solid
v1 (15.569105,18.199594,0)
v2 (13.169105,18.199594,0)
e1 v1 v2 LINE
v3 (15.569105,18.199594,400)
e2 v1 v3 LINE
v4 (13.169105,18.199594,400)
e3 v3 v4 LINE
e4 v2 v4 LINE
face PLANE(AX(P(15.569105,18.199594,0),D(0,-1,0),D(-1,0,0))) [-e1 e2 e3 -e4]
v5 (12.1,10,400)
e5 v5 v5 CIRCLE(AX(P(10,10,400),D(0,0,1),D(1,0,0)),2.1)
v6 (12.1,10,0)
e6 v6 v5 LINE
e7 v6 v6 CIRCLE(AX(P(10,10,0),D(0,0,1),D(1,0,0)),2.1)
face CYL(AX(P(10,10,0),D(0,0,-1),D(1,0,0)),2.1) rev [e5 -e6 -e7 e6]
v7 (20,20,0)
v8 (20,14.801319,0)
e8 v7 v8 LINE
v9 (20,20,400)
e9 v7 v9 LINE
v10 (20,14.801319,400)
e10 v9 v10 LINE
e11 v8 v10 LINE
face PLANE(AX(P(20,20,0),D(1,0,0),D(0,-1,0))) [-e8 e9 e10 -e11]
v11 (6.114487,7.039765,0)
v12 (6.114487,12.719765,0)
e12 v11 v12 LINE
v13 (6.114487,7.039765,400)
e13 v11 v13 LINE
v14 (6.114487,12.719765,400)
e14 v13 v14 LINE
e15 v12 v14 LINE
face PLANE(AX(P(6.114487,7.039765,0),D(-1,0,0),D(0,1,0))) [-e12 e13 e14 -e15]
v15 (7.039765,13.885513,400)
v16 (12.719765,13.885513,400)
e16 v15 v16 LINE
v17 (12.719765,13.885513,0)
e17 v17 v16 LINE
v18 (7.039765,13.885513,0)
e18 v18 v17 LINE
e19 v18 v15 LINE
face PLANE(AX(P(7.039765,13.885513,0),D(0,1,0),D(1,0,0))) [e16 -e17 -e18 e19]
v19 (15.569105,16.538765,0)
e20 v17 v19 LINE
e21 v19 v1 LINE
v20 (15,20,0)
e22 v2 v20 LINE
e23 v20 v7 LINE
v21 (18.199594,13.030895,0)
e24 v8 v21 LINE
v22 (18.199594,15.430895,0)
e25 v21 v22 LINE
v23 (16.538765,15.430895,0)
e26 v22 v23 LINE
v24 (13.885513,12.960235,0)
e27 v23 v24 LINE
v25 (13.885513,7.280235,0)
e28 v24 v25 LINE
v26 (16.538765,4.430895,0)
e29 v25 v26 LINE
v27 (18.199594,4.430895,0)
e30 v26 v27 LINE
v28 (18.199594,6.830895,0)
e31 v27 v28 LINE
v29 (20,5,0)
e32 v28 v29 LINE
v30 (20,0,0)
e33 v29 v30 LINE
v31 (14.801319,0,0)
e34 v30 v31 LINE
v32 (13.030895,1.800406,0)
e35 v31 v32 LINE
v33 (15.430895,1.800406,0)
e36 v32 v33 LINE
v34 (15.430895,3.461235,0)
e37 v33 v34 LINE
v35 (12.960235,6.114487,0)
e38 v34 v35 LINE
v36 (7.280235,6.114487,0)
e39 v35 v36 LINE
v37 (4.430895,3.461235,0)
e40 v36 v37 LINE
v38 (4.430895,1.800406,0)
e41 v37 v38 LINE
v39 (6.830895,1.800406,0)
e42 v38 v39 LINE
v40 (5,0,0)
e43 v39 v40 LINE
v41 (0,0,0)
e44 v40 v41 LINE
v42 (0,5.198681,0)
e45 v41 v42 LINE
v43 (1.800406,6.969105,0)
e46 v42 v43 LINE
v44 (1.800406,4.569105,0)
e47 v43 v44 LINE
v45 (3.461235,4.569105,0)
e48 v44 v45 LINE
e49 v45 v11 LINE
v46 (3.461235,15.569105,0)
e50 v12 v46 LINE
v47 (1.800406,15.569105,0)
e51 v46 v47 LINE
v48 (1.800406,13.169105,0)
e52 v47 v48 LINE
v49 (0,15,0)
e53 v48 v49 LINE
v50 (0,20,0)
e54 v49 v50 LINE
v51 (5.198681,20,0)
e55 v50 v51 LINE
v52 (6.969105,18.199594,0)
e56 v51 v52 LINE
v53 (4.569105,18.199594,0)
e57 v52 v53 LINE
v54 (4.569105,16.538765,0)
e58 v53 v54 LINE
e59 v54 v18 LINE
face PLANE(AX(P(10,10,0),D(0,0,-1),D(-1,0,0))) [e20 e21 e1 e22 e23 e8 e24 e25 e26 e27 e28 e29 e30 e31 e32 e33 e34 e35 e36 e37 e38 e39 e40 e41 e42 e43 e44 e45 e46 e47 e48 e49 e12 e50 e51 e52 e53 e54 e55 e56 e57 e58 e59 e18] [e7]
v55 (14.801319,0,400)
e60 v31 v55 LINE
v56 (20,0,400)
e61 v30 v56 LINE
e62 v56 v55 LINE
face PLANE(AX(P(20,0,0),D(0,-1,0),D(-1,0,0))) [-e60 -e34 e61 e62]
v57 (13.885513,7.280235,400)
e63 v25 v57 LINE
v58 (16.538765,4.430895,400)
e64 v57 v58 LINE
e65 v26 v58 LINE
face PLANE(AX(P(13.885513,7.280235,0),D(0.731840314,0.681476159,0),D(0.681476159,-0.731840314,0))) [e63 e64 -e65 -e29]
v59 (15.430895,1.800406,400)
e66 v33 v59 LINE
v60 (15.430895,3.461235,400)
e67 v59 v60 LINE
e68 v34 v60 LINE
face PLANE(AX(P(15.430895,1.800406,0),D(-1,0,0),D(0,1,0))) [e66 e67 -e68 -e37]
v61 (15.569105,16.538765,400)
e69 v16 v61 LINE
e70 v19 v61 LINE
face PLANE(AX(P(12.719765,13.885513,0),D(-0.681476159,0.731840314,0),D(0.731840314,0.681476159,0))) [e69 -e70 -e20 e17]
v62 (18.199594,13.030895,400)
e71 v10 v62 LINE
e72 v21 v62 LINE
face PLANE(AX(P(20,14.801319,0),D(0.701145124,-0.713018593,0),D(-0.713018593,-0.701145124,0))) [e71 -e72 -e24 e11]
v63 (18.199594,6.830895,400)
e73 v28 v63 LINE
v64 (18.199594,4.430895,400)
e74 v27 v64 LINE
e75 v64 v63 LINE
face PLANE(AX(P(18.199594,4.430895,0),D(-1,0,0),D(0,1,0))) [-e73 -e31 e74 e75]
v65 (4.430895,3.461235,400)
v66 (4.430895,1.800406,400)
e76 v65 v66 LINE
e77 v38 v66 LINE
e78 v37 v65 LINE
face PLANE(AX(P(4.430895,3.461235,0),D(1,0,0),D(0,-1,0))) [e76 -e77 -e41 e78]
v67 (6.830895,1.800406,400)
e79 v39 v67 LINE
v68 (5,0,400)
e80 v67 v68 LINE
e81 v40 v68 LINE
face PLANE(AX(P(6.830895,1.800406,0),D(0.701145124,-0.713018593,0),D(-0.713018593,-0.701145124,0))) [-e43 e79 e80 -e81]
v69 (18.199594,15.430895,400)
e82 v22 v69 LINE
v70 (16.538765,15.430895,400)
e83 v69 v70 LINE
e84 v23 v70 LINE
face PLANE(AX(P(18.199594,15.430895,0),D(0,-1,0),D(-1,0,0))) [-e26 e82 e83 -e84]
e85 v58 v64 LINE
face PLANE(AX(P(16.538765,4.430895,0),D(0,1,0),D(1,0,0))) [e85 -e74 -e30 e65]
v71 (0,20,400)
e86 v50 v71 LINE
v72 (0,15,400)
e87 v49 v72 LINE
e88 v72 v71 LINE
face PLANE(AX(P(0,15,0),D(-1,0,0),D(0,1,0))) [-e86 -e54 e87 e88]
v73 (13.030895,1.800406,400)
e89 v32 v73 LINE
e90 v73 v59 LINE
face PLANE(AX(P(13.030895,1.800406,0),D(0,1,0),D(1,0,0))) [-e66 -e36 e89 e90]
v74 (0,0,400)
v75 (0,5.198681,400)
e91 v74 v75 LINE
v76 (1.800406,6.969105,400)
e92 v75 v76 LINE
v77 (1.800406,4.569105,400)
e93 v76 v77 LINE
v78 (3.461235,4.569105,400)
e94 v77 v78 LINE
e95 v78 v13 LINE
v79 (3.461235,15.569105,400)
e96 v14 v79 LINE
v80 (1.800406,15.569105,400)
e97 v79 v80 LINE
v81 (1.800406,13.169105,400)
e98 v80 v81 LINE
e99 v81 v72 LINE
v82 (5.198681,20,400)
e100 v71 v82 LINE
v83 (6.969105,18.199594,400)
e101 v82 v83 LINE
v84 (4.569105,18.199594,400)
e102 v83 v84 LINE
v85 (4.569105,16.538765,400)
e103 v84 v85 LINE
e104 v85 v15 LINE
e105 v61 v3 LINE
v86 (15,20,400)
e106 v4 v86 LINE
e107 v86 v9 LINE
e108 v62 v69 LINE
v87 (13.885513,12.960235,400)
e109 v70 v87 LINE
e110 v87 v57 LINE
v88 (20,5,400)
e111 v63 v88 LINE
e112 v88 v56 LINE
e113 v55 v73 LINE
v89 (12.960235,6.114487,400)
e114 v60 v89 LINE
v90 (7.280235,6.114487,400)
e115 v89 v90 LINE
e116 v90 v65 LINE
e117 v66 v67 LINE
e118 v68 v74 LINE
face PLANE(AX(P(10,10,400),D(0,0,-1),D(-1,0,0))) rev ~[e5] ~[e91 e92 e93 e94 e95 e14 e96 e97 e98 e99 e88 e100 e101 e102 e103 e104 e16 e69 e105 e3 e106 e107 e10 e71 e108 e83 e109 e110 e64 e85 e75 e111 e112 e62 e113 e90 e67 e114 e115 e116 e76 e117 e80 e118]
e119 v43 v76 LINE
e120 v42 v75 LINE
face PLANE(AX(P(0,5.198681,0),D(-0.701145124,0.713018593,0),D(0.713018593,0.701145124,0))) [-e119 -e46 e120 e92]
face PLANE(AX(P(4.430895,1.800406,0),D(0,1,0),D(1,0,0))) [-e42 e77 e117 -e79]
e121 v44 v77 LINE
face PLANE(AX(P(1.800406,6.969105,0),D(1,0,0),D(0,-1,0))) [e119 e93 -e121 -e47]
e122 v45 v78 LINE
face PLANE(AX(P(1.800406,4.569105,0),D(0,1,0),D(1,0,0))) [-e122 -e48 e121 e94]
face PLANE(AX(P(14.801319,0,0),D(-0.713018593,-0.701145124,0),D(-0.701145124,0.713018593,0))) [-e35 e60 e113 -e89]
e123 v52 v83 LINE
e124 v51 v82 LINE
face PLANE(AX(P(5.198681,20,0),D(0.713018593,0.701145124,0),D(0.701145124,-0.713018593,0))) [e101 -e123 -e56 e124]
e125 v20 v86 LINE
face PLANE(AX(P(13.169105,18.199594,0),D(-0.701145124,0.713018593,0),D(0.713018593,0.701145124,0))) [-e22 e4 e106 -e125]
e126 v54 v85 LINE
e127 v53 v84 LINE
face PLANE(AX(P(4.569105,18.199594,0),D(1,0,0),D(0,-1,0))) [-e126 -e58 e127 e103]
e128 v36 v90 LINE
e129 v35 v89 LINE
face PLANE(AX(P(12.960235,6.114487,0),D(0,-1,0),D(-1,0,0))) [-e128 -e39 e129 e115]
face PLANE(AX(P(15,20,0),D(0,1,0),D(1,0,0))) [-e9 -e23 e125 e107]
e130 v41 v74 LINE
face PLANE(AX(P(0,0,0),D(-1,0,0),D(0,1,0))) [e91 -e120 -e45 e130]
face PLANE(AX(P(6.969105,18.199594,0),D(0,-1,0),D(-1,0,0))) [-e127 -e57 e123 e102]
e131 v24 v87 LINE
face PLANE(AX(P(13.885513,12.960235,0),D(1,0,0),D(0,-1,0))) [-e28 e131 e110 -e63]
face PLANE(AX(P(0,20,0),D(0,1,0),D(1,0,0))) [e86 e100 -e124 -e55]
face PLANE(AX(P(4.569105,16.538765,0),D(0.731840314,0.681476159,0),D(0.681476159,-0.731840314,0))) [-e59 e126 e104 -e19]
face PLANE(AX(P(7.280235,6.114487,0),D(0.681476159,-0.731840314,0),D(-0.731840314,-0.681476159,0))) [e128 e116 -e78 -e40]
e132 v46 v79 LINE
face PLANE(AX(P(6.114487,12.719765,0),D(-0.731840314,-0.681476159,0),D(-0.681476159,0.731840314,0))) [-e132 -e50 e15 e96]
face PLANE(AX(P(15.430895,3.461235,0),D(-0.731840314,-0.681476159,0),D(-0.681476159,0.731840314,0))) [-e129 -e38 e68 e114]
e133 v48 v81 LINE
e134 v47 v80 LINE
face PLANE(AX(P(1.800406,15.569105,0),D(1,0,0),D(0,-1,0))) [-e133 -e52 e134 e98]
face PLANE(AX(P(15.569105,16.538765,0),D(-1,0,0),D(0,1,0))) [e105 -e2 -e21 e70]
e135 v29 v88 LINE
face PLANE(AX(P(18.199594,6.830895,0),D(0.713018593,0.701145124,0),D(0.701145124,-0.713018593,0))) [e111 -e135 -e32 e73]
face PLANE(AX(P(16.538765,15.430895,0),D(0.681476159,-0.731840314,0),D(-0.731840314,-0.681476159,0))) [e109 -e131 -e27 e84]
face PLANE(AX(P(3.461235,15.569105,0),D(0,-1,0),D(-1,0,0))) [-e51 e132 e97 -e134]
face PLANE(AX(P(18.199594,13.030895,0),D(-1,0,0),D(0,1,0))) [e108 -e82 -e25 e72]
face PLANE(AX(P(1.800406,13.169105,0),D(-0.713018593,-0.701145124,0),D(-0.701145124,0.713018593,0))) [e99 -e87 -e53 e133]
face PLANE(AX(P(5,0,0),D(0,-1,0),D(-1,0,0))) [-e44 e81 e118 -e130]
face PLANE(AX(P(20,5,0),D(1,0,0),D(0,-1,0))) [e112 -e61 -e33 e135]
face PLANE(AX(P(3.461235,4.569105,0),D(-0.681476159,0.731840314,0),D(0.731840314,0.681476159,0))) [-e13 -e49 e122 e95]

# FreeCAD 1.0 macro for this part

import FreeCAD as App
import Part
import Sketcher

V = App.Vector
Q = App.Units.Quantity

doc = App.newDocument("Part")
params = doc.addObject("Spreadsheet::Sheet", "Params")
for row, (alias, value) in enumerate([
    ("sketch1_diameter", "4.2 mm"),
    ("sketch1_width", "5 mm"),
    ("sketch1_width2", "2.4 mm"),
    ("sketch1_width3", "5.68 mm"),
    ("pad1_length", "400 mm"),
], start=1):
    params.set(f"A{row}", alias)
    params.set(f"B{row}", "=" + value)
    params.setAlias(f"B{row}", alias)

body = doc.addObject("PartDesign::Body", "Body")

sketch1 = body.newObject("Sketcher::SketchObject", "Sketch")
sketch1.AttachmentSupport = (doc.getObject("XY_Plane"), [""])
sketch1.MapMode = "FlatFace"
sketch1.addGeometry([
    Part.LineSegment(V(12.7, 13.9, 0), V(7, 13.9, 0)),
    Part.LineSegment(V(7, 13.9, 0), V(4.6, 16.5, 0)),
    Part.LineSegment(V(4.6, 16.5, 0), V(4.6, 18.2, 0)),
    Part.LineSegment(V(4.6, 18.2, 0), V(7, 18.2, 0)),
    Part.LineSegment(V(7, 18.2, 0), V(5.2, 20, 0)),
    Part.LineSegment(V(5.2, 20, 0), V(0, 20, 0)),
    Part.LineSegment(V(0, 20, 0), V(0, 15, 0)),
    Part.LineSegment(V(0, 15, 0), V(1.8, 13.2, 0)),
    Part.LineSegment(V(1.8, 13.2, 0), V(1.8, 15.6, 0)),
    Part.LineSegment(V(1.8, 15.6, 0), V(3.5, 15.6, 0)),
    Part.LineSegment(V(3.5, 15.6, 0), V(6.1, 12.7, 0)),
    Part.LineSegment(V(6.1, 12.7, 0), V(6.1, 7, 0)),
    Part.LineSegment(V(6.1, 7, 0), V(3.5, 4.6, 0)),
    Part.LineSegment(V(3.5, 4.6, 0), V(1.8, 4.6, 0)),
    Part.LineSegment(V(1.8, 4.6, 0), V(1.8, 7, 0)),
    Part.LineSegment(V(1.8, 7, 0), V(0, 5.2, 0)),
    Part.LineSegment(V(0, 5.2, 0), V(0, 0, 0)),
    Part.LineSegment(V(0, 0, 0), V(5, 0, 0)),
    Part.LineSegment(V(5, 0, 0), V(6.8, 1.8, 0)),
    Part.LineSegment(V(6.8, 1.8, 0), V(4.4, 1.8, 0)),
    Part.LineSegment(V(4.4, 1.8, 0), V(4.4, 3.5, 0)),
    Part.LineSegment(V(4.4, 3.5, 0), V(7.3, 6.1, 0)),
    Part.LineSegment(V(7.3, 6.1, 0), V(13, 6.1, 0)),
    Part.LineSegment(V(13, 6.1, 0), V(15.4, 3.5, 0)),
    Part.LineSegment(V(15.4, 3.5, 0), V(15.4, 1.8, 0)),
    Part.LineSegment(V(15.4, 1.8, 0), V(13, 1.8, 0)),
    Part.LineSegment(V(13, 1.8, 0), V(14.8, 0, 0)),
    Part.LineSegment(V(14.8, 0, 0), V(20, 0, 0)),
    Part.LineSegment(V(20, 0, 0), V(20, 5, 0)),
    Part.LineSegment(V(20, 5, 0), V(18.2, 6.8, 0)),
    Part.LineSegment(V(18.2, 6.8, 0), V(18.2, 4.4, 0)),
    Part.LineSegment(V(18.2, 4.4, 0), V(16.5, 4.4, 0)),
    Part.LineSegment(V(16.5, 4.4, 0), V(13.9, 7.3, 0)),
    Part.LineSegment(V(13.9, 7.3, 0), V(13.9, 13, 0)),
    Part.LineSegment(V(13.9, 13, 0), V(16.5, 15.4, 0)),
    Part.LineSegment(V(16.5, 15.4, 0), V(18.2, 15.4, 0)),
    Part.LineSegment(V(18.2, 15.4, 0), V(18.2, 13, 0)),
    Part.LineSegment(V(18.2, 13, 0), V(20, 14.8, 0)),
    Part.LineSegment(V(20, 14.8, 0), V(20, 20, 0)),
    Part.LineSegment(V(20, 20, 0), V(15, 20, 0)),
    Part.LineSegment(V(15, 20, 0), V(13.2, 18.2, 0)),
    Part.LineSegment(V(13.2, 18.2, 0), V(15.6, 18.2, 0)),
    Part.LineSegment(V(15.6, 18.2, 0), V(15.6, 16.5, 0)),
    Part.LineSegment(V(15.6, 16.5, 0), V(12.7, 13.9, 0)),
    Part.Circle(V(10, 10, 0), V(0, 0, 1), 2.1),
], False)
sketch1.addConstraint([
    Sketcher.Constraint("Coincident", 0, 2, 1, 1),
    Sketcher.Constraint("Coincident", 1, 2, 2, 1),
    Sketcher.Constraint("Coincident", 2, 2, 3, 1),
    Sketcher.Constraint("Coincident", 3, 2, 4, 1),
    Sketcher.Constraint("Coincident", 4, 2, 5, 1),
    Sketcher.Constraint("Coincident", 5, 2, 6, 1),
    Sketcher.Constraint("Coincident", 6, 2, 7, 1),
    Sketcher.Constraint("Coincident", 7, 2, 8, 1),
    Sketcher.Constraint("Coincident", 8, 2, 9, 1),
    Sketcher.Constraint("Coincident", 9, 2, 10, 1),
    Sketcher.Constraint("Coincident", 10, 2, 11, 1),
    Sketcher.Constraint("Coincident", 11, 2, 12, 1),
    Sketcher.Constraint("Coincident", 12, 2, 13, 1),
    Sketcher.Constraint("Coincident", 13, 2, 14, 1),
    Sketcher.Constraint("Coincident", 14, 2, 15, 1),
    Sketcher.Constraint("Coincident", 15, 2, 16, 1),
    Sketcher.Constraint("Coincident", 16, 2, 17, 1),
    Sketcher.Constraint("Coincident", 17, 2, 18, 1),
    Sketcher.Constraint("Coincident", 18, 2, 19, 1),
    Sketcher.Constraint("Coincident", 19, 2, 20, 1),
    Sketcher.Constraint("Coincident", 20, 2, 21, 1),
    Sketcher.Constraint("Coincident", 21, 2, 22, 1),
    Sketcher.Constraint("Coincident", 22, 2, 23, 1),
    Sketcher.Constraint("Coincident", 23, 2, 24, 1),
    Sketcher.Constraint("Coincident", 24, 2, 25, 1),
    Sketcher.Constraint("Coincident", 25, 2, 26, 1),
    Sketcher.Constraint("Coincident", 26, 2, 27, 1),
    Sketcher.Constraint("Coincident", 27, 2, 28, 1),
    Sketcher.Constraint("Coincident", 28, 2, 29, 1),
    Sketcher.Constraint("Coincident", 29, 2, 30, 1),
    Sketcher.Constraint("Coincident", 30, 2, 31, 1),
    Sketcher.Constraint("Coincident", 31, 2, 32, 1),
    Sketcher.Constraint("Coincident", 32, 2, 33, 1),
    Sketcher.Constraint("Coincident", 33, 2, 34, 1),
    Sketcher.Constraint("Coincident", 34, 2, 35, 1),
    Sketcher.Constraint("Coincident", 35, 2, 36, 1),
    Sketcher.Constraint("Coincident", 36, 2, 37, 1),
    Sketcher.Constraint("Coincident", 37, 2, 38, 1),
    Sketcher.Constraint("Coincident", 38, 2, 39, 1),
    Sketcher.Constraint("Coincident", 39, 2, 40, 1),
    Sketcher.Constraint("Coincident", 40, 2, 41, 1),
    Sketcher.Constraint("Coincident", 41, 2, 42, 1),
    Sketcher.Constraint("Coincident", 42, 2, 43, 1),
    Sketcher.Constraint("Coincident", 43, 2, 0, 1),
    Sketcher.Constraint("Horizontal", 0),
    Sketcher.Constraint("Vertical", 2),
    Sketcher.Constraint("Horizontal", 3),
    Sketcher.Constraint("Horizontal", 5),
    Sketcher.Constraint("Vertical", 6),
    Sketcher.Constraint("Vertical", 8),
    Sketcher.Constraint("Horizontal", 9),
    Sketcher.Constraint("Vertical", 11),
    Sketcher.Constraint("Horizontal", 13),
    Sketcher.Constraint("Vertical", 14),
    Sketcher.Constraint("Vertical", 16),
    Sketcher.Constraint("Horizontal", 17),
    Sketcher.Constraint("Horizontal", 19),
    Sketcher.Constraint("Vertical", 20),
    Sketcher.Constraint("Horizontal", 22),
    Sketcher.Constraint("Vertical", 24),
    Sketcher.Constraint("Horizontal", 25),
    Sketcher.Constraint("Horizontal", 27),
    Sketcher.Constraint("Vertical", 28),
    Sketcher.Constraint("Vertical", 30),
    Sketcher.Constraint("Horizontal", 31),
    Sketcher.Constraint("Vertical", 33),
    Sketcher.Constraint("Horizontal", 35),
    Sketcher.Constraint("Vertical", 36),
    Sketcher.Constraint("Vertical", 38),
    Sketcher.Constraint("Horizontal", 39),
    Sketcher.Constraint("Horizontal", 41),
    Sketcher.Constraint("Vertical", 42),
    Sketcher.Constraint("Coincident", 16, 2, -1, 1),
    Sketcher.Constraint("PointOnObject", 5, 2, -2),
    Sketcher.Constraint("PointOnObject", 26, 2, -1),
    Sketcher.Constraint("Parallel", 4, 7),
    Sketcher.Constraint("Parallel", 1, 10),
    Sketcher.Constraint("Perpendicular", 10, 12),
    Sketcher.Constraint("Perpendicular", 7, 15),
    Sketcher.Constraint("Parallel", 15, 18),
    Sketcher.Constraint("Parallel", 12, 21),
    Sketcher.Constraint("Perpendicular", 21, 23),
    Sketcher.Constraint("Perpendicular", 18, 26),
    Sketcher.Constraint("Parallel", 26, 29),
    Sketcher.Constraint("Parallel", 23, 32),
    Sketcher.Constraint("Perpendicular", 32, 34),
    Sketcher.Constraint("Perpendicular", 29, 37),
    Sketcher.Constraint("Parallel", 37, 40),
    Sketcher.Constraint("Parallel", 34, 43),
    Sketcher.Constraint("Horizontal", 20, 2, 23, 2),
    Sketcher.Constraint("Horizontal", 19, 2, 24, 2),
    Sketcher.Constraint("Horizontal", 5, 2, 38, 2),
    Sketcher.Constraint("Horizontal", 3, 2, 40, 2),
    Sketcher.Constraint("Horizontal", 1, 2, 42, 2),
    Sketcher.Constraint("Vertical", 9, 2, 12, 2),
    Sketcher.Constraint("Vertical", 8, 2, 13, 2),
    Sketcher.Constraint("Vertical", 31, 2, 34, 2),
    Sketcher.Constraint("Vertical", 30, 2, 35, 2),
    Sketcher.Constraint("Vertical", 28, 2, 37, 2),
    Sketcher.Constraint("Equal", 3, 19),
    Sketcher.Constraint("Equal", 0, 22),
    Sketcher.Constraint("Equal", 19, 25),
    Sketcher.Constraint("Equal", 5, 27),
    Sketcher.Constraint("Equal", 13, 31),
    Sketcher.Constraint("Equal", 17, 39),
    Sketcher.Constraint("Equal", 25, 41),
    Sketcher.Constraint("Equal", 35, 2),
    Sketcher.Constraint("Equal", 39, 6),
    Sketcher.Constraint("Equal", 41, 8),
    Sketcher.Constraint("Equal", 22, 11),
    Sketcher.Constraint("Equal", 8, 14),
    Sketcher.Constraint("Equal", 27, 16),
    Sketcher.Constraint("Equal", 2, 20),
    Sketcher.Constraint("Equal", 6, 28),
    Sketcher.Constraint("Equal", 14, 30),
    Sketcher.Constraint("Equal", 11, 33),
    Sketcher.Constraint("Equal", 30, 36),
    Sketcher.Constraint("Equal", 16, 38),
    Sketcher.Constraint("Equal", 1, 12),
    Sketcher.Constraint("Equal", 4, 15),
    Sketcher.Constraint("Equal", 7, 18),
    Sketcher.Constraint("Equal", 18, 29),
    Sketcher.Constraint("Diameter", 44, Q("4.2 mm")),
    Sketcher.Constraint("DistanceX", 17, 1, 17, 2, Q("5 mm")),
    Sketcher.Constraint("DistanceX", 3, 1, 3, 2, Q("2.4 mm")),
    Sketcher.Constraint("DistanceX", -1, 1, 44, 3, Q("10 mm")),
    Sketcher.Constraint("DistanceY", -1, 1, 44, 3, Q("10 mm")),
    Sketcher.Constraint("DistanceY", -1, 1, 4, 2, Q("20 mm")),
    Sketcher.Constraint("DistanceX", 0, 2, 0, 1, Q("5.68 mm")),
    Sketcher.Constraint("DistanceY", 12, 2, 7, 2, Q("8.6 mm")),
    Sketcher.Constraint("DistanceY", 10, 2, 1, 2, Q("3.819 mm")),
    Sketcher.Constraint("DistanceX", 5, 2, 5, 1, Q("5.198681 mm")),
    Sketcher.Constraint("DistanceX", 9, 1, 9, 2, Q("1.660829 mm")),
    Sketcher.Constraint("DistanceX", 7, 2, 1, 2, Q("2.7687 mm")),
])
sketch1.setExpression("Constraints[122]", "Params.sketch1_diameter")
sketch1.setExpression("Constraints[123]", "Params.sketch1_width")
sketch1.setExpression("Constraints[124]", "Params.sketch1_width2")
sketch1.setExpression("Constraints[128]", "Params.sketch1_width3")
pad1 = body.newObject("PartDesign::Pad", "Pad")
pad1.Profile = sketch1
pad1.setExpression("Length", "Params.pad1_length")

doc.recompute()
